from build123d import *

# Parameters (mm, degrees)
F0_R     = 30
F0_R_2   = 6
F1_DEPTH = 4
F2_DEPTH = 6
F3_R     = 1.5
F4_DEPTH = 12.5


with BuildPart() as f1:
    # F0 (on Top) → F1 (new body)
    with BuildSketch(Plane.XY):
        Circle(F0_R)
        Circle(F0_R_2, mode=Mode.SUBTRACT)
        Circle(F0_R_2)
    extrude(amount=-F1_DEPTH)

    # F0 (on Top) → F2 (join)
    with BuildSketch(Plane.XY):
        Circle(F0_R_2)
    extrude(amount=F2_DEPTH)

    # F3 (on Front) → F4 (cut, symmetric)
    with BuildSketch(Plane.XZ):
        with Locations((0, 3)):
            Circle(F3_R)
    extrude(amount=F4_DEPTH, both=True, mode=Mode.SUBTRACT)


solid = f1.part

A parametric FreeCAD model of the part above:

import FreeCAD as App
import Part
import Sketcher
from FreeCAD import Vector
Q = App.Units.Quantity

doc = App.newDocument("Part")
body = doc.addObject("PartDesign::Body", "Body")

# Sketch on XY plane
sketch1 = doc.addObject("Sketcher::SketchObject", "Sketch")
body.addObject(sketch1)
sketch1.AttachmentSupport = (doc.XY_Plane, [""])
sketch1.MapMode = "FlatFace"
sketch1.addGeometry(Part.Circle(Vector(0, 0, 0), Vector(0, 0, 1), 30), False)
sketch1.addConstraint(Sketcher.Constraint("Coincident", 0, 3, -1, 1))
sketch1.addConstraint(Sketcher.Constraint("Diameter", 0, Q("60 mm")))
pad1 = doc.addObject("PartDesign::Pad", "Pad")
body.addObject(pad1)
pad1.Profile = sketch1
pad1.Length = 4
pad1.Reversed = True

# Sketch on XY plane
sketch2 = doc.addObject("Sketcher::SketchObject", "Sketch001")
body.addObject(sketch2)
sketch2.AttachmentSupport = (doc.XY_Plane, [""])
sketch2.MapMode = "FlatFace"
sketch2.addGeometry(Part.Circle(Vector(0, 0, 0), Vector(0, 0, 1), 6), False)
sketch2.addConstraint(Sketcher.Constraint("Coincident", 0, 3, -1, 1))
sketch2.addConstraint(Sketcher.Constraint("Diameter", 0, Q("12 mm")))
pad2 = doc.addObject("PartDesign::Pad", "Pad001")
body.addObject(pad2)
pad2.Profile = sketch2
pad2.Length = 6

# Sketch on XZ plane
sketch3 = doc.addObject("Sketcher::SketchObject", "Sketch002")
body.addObject(sketch3)
sketch3.AttachmentSupport = (doc.XZ_Plane, [""])
sketch3.MapMode = "FlatFace"
sketch3.addGeometry(Part.Circle(Vector(0, 3, 0), Vector(0, 0, 1), 1.5), False)
sketch3.addConstraint(Sketcher.Constraint("PointOnObject", 0, 3, -2))
sketch3.addConstraint(Sketcher.Constraint("Diameter", 0, Q("3 mm")))
sketch3.addConstraint(Sketcher.Constraint("DistanceY", -1, 1, 0, 3, Q("3 mm")))
pocket1 = doc.addObject("PartDesign::Pocket", "Pocket")
body.addObject(pocket1)
pocket1.Profile = sketch3
pocket1.Length = 25
pocket1.Midplane = True

doc.recompute()
